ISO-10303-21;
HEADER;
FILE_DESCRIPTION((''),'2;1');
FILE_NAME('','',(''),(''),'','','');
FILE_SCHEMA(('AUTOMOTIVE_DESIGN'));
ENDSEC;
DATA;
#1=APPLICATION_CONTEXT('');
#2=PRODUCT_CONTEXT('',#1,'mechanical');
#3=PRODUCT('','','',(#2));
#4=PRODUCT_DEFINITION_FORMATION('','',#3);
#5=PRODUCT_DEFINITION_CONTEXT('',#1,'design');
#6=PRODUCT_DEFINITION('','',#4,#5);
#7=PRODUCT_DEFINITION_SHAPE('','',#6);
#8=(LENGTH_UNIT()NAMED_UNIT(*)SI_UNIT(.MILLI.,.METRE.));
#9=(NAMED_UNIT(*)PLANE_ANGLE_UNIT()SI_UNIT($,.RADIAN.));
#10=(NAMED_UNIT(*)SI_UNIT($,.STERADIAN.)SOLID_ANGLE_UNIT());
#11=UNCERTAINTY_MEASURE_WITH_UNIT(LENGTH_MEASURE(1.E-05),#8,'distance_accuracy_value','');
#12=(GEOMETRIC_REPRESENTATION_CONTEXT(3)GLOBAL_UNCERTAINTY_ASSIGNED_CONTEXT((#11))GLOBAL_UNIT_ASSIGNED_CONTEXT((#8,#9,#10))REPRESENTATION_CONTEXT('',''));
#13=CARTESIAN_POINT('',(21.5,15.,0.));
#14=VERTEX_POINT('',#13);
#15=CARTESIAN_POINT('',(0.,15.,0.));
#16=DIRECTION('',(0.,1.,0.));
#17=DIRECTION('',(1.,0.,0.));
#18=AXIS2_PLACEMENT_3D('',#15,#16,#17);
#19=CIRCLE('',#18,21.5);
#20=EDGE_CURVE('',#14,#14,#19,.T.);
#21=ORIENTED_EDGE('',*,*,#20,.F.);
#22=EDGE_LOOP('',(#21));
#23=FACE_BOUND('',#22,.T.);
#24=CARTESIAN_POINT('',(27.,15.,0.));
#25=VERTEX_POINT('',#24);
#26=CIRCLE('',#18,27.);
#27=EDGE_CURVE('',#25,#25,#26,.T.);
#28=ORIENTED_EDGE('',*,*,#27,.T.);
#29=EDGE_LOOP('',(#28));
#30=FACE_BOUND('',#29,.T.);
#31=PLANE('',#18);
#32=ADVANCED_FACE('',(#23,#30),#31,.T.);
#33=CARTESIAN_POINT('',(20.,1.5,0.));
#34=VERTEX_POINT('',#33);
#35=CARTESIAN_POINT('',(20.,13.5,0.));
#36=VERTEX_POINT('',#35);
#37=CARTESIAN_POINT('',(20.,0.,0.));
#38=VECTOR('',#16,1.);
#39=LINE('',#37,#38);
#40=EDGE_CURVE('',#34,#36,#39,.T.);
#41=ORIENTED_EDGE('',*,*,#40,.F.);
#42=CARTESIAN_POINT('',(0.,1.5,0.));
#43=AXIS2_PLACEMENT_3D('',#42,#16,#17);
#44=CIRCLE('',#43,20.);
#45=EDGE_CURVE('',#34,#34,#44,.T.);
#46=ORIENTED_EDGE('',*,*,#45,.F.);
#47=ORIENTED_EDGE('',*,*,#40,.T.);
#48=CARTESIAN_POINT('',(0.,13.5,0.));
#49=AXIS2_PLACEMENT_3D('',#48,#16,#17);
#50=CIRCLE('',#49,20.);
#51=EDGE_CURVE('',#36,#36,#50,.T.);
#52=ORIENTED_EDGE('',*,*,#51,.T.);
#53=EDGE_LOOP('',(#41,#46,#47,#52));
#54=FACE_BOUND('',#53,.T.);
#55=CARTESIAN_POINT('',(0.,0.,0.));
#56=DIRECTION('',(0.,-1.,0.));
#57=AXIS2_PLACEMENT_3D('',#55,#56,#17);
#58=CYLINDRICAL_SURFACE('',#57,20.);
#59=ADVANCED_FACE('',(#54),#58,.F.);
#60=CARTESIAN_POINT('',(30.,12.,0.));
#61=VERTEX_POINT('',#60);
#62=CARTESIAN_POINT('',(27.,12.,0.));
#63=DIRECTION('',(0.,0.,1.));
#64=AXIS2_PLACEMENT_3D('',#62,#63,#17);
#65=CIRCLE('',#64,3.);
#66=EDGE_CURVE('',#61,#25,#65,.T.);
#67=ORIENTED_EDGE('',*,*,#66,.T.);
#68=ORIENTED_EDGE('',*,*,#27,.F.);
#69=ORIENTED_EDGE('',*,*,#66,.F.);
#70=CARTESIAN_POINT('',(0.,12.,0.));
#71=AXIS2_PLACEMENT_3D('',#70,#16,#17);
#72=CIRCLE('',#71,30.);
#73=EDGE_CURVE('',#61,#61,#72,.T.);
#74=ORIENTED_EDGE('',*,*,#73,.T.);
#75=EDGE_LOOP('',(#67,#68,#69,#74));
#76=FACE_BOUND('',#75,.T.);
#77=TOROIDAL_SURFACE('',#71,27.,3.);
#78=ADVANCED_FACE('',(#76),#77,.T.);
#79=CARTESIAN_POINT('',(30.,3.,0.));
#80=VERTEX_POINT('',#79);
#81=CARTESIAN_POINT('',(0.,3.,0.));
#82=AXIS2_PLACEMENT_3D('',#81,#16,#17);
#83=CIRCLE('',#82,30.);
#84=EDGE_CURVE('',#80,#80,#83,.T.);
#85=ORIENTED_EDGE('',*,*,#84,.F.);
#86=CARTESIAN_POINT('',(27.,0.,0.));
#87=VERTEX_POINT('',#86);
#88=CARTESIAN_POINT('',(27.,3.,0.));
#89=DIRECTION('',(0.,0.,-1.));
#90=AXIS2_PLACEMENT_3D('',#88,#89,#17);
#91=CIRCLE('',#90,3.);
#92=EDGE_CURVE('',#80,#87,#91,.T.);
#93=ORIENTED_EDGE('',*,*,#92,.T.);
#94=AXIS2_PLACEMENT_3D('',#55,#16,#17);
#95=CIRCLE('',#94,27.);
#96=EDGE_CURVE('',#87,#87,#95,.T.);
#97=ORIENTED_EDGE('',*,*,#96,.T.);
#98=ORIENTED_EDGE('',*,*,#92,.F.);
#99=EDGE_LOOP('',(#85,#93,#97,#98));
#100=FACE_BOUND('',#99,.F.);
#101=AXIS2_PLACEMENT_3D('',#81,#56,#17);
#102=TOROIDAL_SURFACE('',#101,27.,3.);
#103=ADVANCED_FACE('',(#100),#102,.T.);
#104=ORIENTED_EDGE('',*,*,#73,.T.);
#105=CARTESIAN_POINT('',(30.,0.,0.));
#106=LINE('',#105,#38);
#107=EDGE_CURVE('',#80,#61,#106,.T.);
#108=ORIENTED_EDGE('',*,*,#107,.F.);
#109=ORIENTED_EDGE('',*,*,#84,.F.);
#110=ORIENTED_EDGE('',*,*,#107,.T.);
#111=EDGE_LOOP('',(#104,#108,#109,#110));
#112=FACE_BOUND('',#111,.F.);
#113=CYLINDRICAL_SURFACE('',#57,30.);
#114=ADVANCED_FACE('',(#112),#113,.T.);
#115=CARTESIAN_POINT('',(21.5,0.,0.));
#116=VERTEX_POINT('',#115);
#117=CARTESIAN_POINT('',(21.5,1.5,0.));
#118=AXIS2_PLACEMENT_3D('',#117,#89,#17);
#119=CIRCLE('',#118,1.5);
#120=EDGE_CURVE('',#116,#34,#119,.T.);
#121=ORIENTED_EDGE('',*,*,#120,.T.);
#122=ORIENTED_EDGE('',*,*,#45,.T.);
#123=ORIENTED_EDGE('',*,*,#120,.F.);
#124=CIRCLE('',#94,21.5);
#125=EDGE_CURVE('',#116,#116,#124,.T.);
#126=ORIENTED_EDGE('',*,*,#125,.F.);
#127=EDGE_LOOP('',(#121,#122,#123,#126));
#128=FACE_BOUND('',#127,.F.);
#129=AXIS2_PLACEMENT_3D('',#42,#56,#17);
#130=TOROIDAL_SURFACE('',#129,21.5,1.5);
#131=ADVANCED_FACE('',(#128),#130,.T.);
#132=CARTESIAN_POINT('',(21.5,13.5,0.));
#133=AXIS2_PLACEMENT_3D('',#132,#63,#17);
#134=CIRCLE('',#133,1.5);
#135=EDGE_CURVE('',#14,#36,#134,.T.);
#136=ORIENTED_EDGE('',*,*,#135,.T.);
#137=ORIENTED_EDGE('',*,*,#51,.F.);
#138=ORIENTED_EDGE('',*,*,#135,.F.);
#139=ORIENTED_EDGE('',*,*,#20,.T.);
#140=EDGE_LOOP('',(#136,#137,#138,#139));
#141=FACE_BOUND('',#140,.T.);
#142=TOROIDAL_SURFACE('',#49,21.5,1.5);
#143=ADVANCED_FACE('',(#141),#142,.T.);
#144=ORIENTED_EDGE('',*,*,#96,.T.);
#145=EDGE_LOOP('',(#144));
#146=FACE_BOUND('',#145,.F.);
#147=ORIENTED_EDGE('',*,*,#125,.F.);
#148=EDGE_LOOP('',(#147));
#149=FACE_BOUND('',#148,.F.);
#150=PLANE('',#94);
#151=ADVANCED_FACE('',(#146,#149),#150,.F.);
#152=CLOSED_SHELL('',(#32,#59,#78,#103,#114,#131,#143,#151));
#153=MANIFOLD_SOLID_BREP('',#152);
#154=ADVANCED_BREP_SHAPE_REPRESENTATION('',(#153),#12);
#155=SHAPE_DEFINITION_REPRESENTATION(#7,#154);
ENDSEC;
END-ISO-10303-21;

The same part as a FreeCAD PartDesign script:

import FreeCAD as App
import Part
import Sketcher
from FreeCAD import Vector
Q = App.Units.Quantity


def edges_at(feature, points):
    """Names of the edges that pass closest to the given points."""
    edges = feature.Shape.Edges
    near = lambda p: min(range(len(edges)), key=lambda i: edges[i].distToShape(Part.Vertex(*p))[0])
    return sorted({f"Edge{near(p) + 1}" for p in points})

doc = App.newDocument("Part")
body = doc.addObject("PartDesign::Body", "Body")

# Sketch on XZ plane
sketch1 = body.newObject("Sketcher::SketchObject", "Sketch")
sketch1.AttachmentSupport = (doc.getObject("XZ_Plane"), [""])
sketch1.MapMode = "FlatFace"
sketch1.addGeometry(Part.Circle(Vector(0, 0, 0), Vector(0, 0, 1), 30), False)
sketch1.addGeometry(Part.Circle(Vector(0, 0, 0), Vector(0, 0, 1), 20), False)
sketch1.addConstraint(Sketcher.Constraint("Coincident", 0, 3, -1, 1))
sketch1.addConstraint(Sketcher.Constraint("Coincident", 1, 3, -1, 1))
sketch1.addConstraint(Sketcher.Constraint("Diameter", 0, Q("60 mm")))
sketch1.addConstraint(Sketcher.Constraint("Diameter", 1, Q("40 mm")))
pad1 = body.newObject("PartDesign::Pad", "Pad")
pad1.Profile = sketch1
pad1.Length = 15
pad1.Reversed = True
doc.recompute()

fillet = body.newObject("PartDesign::Fillet", "Fillet")
fillet.Base = (pad1, edges_at(pad1, [(-30, 0, 0), (-30, 15, 0)]))
fillet.Radius = 3
doc.recompute()

fillet2 = body.newObject("PartDesign::Fillet", "Fillet001")
fillet2.Base = (fillet, edges_at(fillet, [(-20, 0, 0), (-20, 15, 0)]))
fillet2.Radius = 1.5

doc.recompute()
